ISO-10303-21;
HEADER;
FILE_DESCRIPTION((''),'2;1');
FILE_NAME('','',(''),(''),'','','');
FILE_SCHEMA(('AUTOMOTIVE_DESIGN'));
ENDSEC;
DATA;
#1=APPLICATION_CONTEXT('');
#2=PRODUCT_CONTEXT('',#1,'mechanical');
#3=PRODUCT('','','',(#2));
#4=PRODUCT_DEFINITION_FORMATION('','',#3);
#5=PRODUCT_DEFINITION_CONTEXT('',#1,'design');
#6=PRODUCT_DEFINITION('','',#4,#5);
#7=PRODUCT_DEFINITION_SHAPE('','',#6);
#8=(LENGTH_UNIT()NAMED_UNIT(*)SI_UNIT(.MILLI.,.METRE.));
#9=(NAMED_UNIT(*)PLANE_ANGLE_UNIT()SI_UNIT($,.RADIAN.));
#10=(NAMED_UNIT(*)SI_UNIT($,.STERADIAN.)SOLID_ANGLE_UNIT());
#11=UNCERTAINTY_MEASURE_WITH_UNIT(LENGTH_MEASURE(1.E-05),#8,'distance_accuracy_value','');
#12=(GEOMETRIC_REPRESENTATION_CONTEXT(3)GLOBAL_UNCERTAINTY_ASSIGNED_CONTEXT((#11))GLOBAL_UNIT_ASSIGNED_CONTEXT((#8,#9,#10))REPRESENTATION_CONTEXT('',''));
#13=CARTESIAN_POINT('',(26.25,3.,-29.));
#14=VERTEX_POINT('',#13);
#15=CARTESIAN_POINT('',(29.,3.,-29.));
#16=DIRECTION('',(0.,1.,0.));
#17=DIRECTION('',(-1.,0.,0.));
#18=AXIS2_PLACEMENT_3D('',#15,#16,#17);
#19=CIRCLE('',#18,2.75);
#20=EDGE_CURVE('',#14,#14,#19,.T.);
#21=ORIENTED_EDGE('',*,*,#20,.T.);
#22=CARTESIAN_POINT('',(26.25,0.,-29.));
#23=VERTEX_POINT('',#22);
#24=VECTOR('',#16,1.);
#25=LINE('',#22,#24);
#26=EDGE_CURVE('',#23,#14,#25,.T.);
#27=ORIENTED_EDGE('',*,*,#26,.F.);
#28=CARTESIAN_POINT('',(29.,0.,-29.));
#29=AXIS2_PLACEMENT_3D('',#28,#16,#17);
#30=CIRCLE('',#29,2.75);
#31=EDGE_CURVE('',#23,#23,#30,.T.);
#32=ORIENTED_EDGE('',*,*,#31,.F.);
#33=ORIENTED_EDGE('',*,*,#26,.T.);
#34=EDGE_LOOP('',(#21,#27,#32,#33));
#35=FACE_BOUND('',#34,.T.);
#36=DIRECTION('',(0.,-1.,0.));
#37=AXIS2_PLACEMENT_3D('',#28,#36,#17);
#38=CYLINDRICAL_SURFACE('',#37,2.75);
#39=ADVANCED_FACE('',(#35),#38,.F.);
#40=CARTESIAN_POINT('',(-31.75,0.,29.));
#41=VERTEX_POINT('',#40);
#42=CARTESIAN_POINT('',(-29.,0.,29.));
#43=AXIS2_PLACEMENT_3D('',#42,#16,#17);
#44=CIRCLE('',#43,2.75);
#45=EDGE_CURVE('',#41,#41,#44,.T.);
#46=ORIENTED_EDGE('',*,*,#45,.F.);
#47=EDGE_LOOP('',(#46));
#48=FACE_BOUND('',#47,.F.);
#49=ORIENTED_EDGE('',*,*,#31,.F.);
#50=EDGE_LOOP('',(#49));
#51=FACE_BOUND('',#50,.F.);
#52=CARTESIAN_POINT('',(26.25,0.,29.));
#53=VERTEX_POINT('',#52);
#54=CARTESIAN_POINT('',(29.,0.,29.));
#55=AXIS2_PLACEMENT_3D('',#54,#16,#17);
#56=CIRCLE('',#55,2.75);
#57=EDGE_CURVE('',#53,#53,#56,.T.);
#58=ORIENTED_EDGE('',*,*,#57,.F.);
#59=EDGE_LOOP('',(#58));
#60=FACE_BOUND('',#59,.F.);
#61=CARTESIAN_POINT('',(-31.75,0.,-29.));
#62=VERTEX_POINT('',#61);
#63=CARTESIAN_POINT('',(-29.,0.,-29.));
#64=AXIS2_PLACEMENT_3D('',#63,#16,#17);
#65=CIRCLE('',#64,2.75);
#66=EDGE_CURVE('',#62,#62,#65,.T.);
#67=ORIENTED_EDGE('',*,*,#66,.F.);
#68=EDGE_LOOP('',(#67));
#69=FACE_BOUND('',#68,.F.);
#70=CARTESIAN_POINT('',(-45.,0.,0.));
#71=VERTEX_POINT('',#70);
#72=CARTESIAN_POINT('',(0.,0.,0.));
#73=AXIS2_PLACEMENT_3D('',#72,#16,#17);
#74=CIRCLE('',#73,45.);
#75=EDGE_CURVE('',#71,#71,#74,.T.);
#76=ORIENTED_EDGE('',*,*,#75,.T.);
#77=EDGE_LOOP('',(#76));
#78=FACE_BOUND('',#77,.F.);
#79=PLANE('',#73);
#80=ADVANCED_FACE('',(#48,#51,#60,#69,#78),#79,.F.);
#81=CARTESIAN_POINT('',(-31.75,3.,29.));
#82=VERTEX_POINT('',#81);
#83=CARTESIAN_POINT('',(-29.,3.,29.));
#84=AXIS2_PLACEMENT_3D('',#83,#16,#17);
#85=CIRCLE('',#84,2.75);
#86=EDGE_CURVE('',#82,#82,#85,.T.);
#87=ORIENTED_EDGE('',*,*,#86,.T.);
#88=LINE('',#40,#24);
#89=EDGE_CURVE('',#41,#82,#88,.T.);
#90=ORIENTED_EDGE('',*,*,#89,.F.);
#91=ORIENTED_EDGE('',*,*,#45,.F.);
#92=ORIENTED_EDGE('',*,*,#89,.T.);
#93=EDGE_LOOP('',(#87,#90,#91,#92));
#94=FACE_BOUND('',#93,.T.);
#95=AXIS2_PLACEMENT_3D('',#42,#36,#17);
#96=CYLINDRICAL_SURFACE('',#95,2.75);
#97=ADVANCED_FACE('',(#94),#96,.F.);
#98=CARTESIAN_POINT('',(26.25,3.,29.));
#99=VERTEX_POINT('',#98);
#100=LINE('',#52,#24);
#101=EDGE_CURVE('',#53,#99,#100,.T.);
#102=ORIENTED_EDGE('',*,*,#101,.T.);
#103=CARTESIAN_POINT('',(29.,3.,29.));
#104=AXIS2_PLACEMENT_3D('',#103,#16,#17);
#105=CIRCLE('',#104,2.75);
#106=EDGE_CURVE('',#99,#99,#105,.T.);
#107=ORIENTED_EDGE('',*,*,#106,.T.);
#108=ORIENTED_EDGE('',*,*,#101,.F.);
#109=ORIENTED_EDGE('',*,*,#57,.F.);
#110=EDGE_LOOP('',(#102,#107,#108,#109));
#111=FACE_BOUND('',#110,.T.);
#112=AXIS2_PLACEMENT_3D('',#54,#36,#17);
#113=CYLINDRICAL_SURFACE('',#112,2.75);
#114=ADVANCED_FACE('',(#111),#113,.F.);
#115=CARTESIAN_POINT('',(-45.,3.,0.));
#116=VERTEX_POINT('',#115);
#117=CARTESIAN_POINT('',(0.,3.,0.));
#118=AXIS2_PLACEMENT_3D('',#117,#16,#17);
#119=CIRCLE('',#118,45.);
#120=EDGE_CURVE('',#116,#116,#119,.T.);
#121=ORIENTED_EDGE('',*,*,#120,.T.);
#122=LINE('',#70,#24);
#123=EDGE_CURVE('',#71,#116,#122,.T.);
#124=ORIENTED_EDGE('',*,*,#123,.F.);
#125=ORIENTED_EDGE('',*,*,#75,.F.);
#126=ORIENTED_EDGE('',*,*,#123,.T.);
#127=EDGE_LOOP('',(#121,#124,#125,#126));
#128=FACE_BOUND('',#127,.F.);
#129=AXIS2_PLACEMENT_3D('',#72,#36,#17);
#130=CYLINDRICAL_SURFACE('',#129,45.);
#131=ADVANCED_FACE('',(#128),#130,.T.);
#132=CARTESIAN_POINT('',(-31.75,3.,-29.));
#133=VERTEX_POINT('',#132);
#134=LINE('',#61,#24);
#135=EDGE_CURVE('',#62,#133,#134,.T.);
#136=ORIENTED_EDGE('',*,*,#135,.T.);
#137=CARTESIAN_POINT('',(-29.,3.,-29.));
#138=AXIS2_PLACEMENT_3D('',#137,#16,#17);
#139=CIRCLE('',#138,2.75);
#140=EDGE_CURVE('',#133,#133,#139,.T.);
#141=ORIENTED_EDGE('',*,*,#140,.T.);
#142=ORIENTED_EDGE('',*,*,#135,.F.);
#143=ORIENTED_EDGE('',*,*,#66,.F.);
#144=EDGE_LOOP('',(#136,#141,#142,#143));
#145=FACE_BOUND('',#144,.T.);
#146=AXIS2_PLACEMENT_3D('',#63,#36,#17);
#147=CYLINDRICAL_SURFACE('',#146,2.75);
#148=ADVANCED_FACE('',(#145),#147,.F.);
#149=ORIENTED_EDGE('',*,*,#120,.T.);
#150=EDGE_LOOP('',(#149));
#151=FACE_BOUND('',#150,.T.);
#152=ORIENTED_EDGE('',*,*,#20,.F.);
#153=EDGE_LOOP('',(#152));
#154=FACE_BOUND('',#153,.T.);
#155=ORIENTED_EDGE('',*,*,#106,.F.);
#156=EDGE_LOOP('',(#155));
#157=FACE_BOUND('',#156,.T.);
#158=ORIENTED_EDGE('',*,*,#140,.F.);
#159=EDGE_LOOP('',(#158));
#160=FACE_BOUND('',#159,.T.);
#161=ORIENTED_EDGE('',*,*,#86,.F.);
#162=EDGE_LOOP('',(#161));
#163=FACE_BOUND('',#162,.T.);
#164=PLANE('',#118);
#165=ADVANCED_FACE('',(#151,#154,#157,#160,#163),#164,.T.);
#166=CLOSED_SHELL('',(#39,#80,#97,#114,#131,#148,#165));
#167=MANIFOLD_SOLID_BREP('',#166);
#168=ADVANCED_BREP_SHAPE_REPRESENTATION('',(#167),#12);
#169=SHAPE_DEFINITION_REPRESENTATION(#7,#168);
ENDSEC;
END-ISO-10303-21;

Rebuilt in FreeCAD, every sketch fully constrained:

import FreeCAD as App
import Part
import Sketcher
from FreeCAD import Vector
Q = App.Units.Quantity

doc = App.newDocument("Part")
body = doc.addObject("PartDesign::Body", "Body")

sketch1 = body.newObject("Sketcher::SketchObject", "Sketch")
sketch1.AttachmentSupport = (doc.getObject("XZ_Plane"), [""])
sketch1.MapMode = "FlatFace"
sketch1.addGeometry([
    Part.Circle(Vector(0, 0, 0), Vector(0, 0, 1), 45),
    Part.Circle(Vector(29, -29, 0), Vector(0, 0, 1), 2.8),
    Part.Circle(Vector(-29, -29, 0), Vector(0, 0, 1), 2.8),
    Part.Circle(Vector(29, 29, 0), Vector(0, 0, 1), 2.8),
    Part.Circle(Vector(-29, 29, 0), Vector(0, 0, 1), 2.8),
], False)
sketch1.addConstraint([
    Sketcher.Constraint("Coincident", 0, 3, -1, 1),
    Sketcher.Constraint("Equal", 1, 2),
    Sketcher.Constraint("Equal", 2, 3),
    Sketcher.Constraint("Equal", 3, 4),
    Sketcher.Constraint("Symmetric", 2, 3, 3, 3, -1, 1),
    Sketcher.Constraint("Symmetric", 1, 3, 4, 3, -1, 1),
    Sketcher.Constraint("Symmetric", 1, 3, 2, 3, -2),
    Sketcher.Constraint("Diameter", 0, Q("90 mm")),
    Sketcher.Constraint("Diameter", 1, Q("5.5 mm")),
    Sketcher.Constraint("DistanceX", -1, 1, 1, 3, Q("29 mm")),
    Sketcher.Constraint("DistanceY", 1, 3, -1, 1, Q("29 mm")),
])
pad1 = body.newObject("PartDesign::Pad", "Pad")
pad1.Profile = sketch1
pad1.Length = 3
pad1.Reversed = True

doc.recompute()
